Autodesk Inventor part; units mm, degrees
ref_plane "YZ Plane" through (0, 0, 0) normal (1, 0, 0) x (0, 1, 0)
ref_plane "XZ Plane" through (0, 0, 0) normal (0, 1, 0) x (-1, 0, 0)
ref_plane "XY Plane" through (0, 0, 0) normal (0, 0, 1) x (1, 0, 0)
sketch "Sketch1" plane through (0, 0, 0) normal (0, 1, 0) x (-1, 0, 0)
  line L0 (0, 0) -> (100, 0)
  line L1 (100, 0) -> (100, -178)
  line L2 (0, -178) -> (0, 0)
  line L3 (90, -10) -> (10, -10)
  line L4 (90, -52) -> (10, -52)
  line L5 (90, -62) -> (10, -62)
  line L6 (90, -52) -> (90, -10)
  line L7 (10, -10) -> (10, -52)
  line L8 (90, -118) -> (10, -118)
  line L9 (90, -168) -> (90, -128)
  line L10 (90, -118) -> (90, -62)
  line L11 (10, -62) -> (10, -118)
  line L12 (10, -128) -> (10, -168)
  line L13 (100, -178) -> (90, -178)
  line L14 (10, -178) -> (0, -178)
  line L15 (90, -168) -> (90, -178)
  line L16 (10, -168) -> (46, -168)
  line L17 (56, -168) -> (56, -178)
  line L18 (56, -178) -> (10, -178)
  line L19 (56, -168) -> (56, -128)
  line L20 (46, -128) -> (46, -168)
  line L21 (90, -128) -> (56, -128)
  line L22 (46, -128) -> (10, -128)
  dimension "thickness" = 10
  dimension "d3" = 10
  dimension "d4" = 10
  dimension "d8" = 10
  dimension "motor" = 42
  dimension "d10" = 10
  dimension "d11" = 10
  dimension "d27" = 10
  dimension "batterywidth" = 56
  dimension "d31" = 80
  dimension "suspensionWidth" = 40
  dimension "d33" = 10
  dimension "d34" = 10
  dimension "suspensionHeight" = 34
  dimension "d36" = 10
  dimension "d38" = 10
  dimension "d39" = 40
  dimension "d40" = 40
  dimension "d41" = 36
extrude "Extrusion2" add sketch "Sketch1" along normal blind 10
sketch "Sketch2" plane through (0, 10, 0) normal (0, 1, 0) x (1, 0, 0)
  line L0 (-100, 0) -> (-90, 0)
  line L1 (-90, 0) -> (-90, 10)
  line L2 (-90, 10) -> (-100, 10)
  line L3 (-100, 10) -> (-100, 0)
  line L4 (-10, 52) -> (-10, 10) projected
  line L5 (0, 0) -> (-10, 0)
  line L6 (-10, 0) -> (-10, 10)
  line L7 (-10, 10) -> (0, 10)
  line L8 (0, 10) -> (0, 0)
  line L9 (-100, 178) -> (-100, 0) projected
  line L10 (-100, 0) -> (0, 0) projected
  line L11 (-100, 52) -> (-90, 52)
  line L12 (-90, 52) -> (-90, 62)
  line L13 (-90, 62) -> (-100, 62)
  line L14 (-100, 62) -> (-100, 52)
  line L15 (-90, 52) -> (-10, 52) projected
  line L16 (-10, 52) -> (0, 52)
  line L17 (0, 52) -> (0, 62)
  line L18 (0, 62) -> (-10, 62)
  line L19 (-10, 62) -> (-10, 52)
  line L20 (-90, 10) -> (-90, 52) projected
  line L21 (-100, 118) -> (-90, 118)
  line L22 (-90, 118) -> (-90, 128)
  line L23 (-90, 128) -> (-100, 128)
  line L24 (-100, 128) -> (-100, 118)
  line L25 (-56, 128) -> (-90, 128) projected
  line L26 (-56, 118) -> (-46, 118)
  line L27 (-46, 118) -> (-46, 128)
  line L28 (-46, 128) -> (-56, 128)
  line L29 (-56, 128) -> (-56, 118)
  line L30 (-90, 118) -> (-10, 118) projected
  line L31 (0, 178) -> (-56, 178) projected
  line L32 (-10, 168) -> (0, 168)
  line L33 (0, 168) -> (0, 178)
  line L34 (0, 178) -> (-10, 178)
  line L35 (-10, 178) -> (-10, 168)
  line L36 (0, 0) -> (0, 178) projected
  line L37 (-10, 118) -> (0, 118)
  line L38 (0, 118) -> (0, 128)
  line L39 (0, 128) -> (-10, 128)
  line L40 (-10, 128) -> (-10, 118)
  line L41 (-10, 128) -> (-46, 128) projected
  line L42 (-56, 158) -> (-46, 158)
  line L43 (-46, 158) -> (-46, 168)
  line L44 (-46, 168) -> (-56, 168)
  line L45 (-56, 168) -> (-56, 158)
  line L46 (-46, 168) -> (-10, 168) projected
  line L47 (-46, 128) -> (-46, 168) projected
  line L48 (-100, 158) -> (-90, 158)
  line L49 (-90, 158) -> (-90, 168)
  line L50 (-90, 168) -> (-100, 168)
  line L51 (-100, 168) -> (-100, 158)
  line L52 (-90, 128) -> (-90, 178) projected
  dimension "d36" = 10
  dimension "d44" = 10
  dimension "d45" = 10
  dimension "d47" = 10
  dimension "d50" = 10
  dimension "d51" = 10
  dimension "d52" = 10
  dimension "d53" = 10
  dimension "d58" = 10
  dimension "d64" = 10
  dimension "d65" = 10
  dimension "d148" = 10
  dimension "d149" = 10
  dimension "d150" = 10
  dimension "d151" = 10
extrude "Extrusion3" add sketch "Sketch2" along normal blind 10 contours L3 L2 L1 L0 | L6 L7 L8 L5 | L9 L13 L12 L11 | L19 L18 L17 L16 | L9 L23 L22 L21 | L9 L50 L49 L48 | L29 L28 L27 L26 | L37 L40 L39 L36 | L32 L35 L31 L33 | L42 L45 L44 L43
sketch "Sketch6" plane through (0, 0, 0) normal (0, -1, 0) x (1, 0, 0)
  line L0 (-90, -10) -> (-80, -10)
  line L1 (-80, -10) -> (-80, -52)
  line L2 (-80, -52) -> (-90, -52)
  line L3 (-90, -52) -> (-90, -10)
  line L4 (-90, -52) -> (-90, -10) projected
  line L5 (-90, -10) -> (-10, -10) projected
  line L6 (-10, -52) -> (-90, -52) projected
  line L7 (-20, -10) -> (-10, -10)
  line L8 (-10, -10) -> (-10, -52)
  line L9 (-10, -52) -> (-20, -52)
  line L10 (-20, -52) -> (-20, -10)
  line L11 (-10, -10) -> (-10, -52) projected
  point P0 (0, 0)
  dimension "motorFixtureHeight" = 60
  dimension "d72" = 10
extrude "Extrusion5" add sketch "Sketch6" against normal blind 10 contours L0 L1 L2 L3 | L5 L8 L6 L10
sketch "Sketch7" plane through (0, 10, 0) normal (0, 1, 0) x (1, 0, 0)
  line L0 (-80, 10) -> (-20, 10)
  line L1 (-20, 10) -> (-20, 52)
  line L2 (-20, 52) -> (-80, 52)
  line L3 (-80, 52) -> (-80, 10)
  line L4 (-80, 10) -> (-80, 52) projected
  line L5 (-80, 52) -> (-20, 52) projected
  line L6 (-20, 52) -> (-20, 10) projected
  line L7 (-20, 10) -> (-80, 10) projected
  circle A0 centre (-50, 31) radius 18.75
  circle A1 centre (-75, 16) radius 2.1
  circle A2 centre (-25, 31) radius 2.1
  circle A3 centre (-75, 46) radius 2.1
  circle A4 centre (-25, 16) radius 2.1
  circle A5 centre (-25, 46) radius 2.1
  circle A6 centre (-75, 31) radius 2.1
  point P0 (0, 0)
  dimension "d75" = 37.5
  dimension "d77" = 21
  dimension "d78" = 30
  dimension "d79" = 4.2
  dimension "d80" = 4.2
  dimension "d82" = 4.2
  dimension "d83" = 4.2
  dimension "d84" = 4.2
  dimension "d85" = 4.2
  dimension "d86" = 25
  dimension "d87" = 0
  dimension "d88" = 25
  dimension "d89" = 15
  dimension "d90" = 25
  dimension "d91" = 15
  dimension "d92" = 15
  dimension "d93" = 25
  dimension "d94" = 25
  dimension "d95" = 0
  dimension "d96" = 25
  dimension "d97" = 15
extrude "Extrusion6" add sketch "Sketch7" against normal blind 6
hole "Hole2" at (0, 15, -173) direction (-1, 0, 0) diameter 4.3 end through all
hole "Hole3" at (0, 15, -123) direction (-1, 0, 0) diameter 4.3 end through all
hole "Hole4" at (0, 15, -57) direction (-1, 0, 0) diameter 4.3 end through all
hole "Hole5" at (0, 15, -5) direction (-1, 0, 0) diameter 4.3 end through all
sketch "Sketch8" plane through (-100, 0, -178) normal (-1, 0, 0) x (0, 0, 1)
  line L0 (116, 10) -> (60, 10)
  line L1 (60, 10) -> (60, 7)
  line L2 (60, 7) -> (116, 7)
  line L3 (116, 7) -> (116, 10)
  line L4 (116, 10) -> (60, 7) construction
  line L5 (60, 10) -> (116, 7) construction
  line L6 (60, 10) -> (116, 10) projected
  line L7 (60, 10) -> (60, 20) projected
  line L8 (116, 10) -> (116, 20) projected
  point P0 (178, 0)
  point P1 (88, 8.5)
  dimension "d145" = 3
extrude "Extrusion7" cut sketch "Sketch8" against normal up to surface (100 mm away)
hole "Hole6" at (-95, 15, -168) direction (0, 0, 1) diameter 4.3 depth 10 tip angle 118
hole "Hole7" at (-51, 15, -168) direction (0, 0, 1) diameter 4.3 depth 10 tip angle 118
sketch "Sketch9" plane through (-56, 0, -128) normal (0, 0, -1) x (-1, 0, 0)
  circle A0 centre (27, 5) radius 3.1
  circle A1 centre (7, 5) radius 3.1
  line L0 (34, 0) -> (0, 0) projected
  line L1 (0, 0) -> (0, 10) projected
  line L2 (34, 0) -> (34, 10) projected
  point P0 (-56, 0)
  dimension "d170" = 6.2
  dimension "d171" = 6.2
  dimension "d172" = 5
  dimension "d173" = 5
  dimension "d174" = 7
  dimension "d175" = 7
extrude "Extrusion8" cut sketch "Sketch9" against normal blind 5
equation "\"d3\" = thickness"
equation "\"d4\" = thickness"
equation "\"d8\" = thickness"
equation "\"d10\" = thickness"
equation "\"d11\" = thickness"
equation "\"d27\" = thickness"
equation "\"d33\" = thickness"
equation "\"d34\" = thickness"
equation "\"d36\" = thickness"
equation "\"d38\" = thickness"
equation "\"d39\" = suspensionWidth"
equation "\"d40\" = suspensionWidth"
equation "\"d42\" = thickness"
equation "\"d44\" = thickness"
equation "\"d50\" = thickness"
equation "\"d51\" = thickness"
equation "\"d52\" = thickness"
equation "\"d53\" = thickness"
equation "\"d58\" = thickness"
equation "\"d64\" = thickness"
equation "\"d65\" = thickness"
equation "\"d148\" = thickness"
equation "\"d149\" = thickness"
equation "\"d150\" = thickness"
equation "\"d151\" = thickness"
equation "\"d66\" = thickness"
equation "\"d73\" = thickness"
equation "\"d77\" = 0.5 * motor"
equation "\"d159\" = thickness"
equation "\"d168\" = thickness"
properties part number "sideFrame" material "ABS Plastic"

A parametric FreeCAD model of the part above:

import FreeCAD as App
import Part
import Sketcher
from FreeCAD import Vector
Q = App.Units.Quantity


def add_polygon(sketch, points):
    """Adds a closed chain of lines whose ends are joined by coincident constraints."""
    first, n = sketch.GeometryCount, len(points)
    for a, b in zip(points, points[1:] + points[:1]):
        sketch.addGeometry(Part.LineSegment(App.Vector(*a, 0), App.Vector(*b, 0)), False)
    for i in range(n):
        sketch.addConstraint(Sketcher.Constraint("Coincident", first + i, 2, first + (i + 1) % n, 1))

doc = App.newDocument("Part")
body = doc.addObject("PartDesign::Body", "Body")

sketch1 = doc.addObject("Sketcher::SketchObject", "Sketch")
body.addObject(sketch1)
sketch1.AttachmentSupport = (doc.XZ_Plane, [""])
sketch1.MapMode = "FlatFace"
add_polygon(sketch1, [(-100, 0), (0, 0), (0, -178), (-56, -178), (-56, -128), (-90, -128), (-90, -178), (-100, -178)])
add_polygon(sketch1, [(-10, -168), (-10, -128), (-46, -128), (-46, -168)])
add_polygon(sketch1, [(-10, -62), (-90, -62), (-90, -118), (-10, -118)])
add_polygon(sketch1, [(-10, -10), (-90, -10), (-90, -52), (-10, -52)])
sketch1.addConstraint([
    Sketcher.Constraint("Horizontal", 0),
    Sketcher.Constraint("Vertical", 1),
    Sketcher.Constraint("Horizontal", 2),
    Sketcher.Constraint("Vertical", 3),
    Sketcher.Constraint("Horizontal", 4),
    Sketcher.Constraint("Vertical", 5),
    Sketcher.Constraint("Horizontal", 6),
    Sketcher.Constraint("Vertical", 7),
    Sketcher.Constraint("Vertical", 8),
    Sketcher.Constraint("Horizontal", 9),
    Sketcher.Constraint("Vertical", 10),
    Sketcher.Constraint("Horizontal", 11),
    Sketcher.Constraint("Horizontal", 12),
    Sketcher.Constraint("Vertical", 13),
    Sketcher.Constraint("Horizontal", 14),
    Sketcher.Constraint("Vertical", 15),
    Sketcher.Constraint("Horizontal", 16),
    Sketcher.Constraint("Vertical", 17),
    Sketcher.Constraint("Horizontal", 18),
    Sketcher.Constraint("Vertical", 19),
    Sketcher.Constraint("Coincident", 0, 2, -1, 1),
    Sketcher.Constraint("Horizontal", 2, 2, 5, 2),
    Sketcher.Constraint("Horizontal", 4, 2, 8, 2),
    Sketcher.Constraint("Vertical", 5, 2, 12, 2),
    Sketcher.Constraint("Vertical", 11, 2, 14, 2),
    Sketcher.Constraint("Vertical", 13, 2, 16, 2),
    Sketcher.Constraint("Vertical", 15, 2, 18, 2),
    Sketcher.Constraint("Equal", 2, 13),
    Sketcher.Constraint("DistanceX", 2, 2, 2, 1, Q("56 mm")),
    Sketcher.Constraint("DistanceX", 4, 2, 4, 1, Q("34 mm")),
    Sketcher.Constraint("DistanceX", 6, 2, 6, 1, Q("10 mm")),
    Sketcher.Constraint("DistanceX", 9, 2, 9, 1, Q("36 mm")),
    Sketcher.Constraint("DistanceX", 12, 2, 12, 1, Q("80 mm")),
    Sketcher.Constraint("DistanceY", 8, 1, 8, 2, Q("40 mm")),
    Sketcher.Constraint("DistanceY", 17, 2, 17, 1, Q("42 mm")),
    Sketcher.Constraint("DistanceY", 16, 2, -1, 1, Q("10 mm")),
    Sketcher.Constraint("DistanceY", 2, 2, 10, 2, Q("10 mm")),
    Sketcher.Constraint("DistanceY", 4, 2, 13, 2, Q("10 mm")),
    Sketcher.Constraint("DistanceY", 12, 2, 17, 2, Q("10 mm")),
])
pad1 = doc.addObject("PartDesign::Pad", "Pad")
body.addObject(pad1)
pad1.Profile = sketch1
pad1.Length = 10
pad1.Reversed = True

sketch2 = doc.addObject("Sketcher::SketchObject", "Sketch001")
body.addObject(sketch2)
sketch2.AttachmentSupport = (doc.XZ_Plane, [""])
sketch2.MapMode = "FlatFace"
sketch2.AttachmentOffset = App.Placement(Vector(0, 0, -10), App.Rotation())
add_polygon(sketch2, [(-100, -10), (-100, 0), (-90, 0), (-90, -10)])
add_polygon(sketch2, [(-10, -10), (-10, 0), (0, 0), (0, -10)])
add_polygon(sketch2, [(-100, -62), (-100, -52), (-90, -52), (-90, -62)])
add_polygon(sketch2, [(-10, -62), (-10, -52), (0, -52), (0, -62)])
add_polygon(sketch2, [(-100, -128), (-100, -118), (-90, -118), (-90, -128)])
add_polygon(sketch2, [(-100, -168), (-100, -158), (-90, -158), (-90, -168)])
add_polygon(sketch2, [(-56, -128), (-56, -118), (-46, -118), (-46, -128)])
add_polygon(sketch2, [(-10, -118), (0, -118), (0, -128), (-10, -128)])
add_polygon(sketch2, [(-10, -168), (0, -168), (0, -178), (-10, -178)])
add_polygon(sketch2, [(-56, -158), (-46, -158), (-46, -168), (-56, -168)])
sketch2.addConstraint([
    Sketcher.Constraint("Vertical", 0),
    Sketcher.Constraint("Horizontal", 1),
    Sketcher.Constraint("Vertical", 2),
    Sketcher.Constraint("Horizontal", 3),
    Sketcher.Constraint("Vertical", 4),
    Sketcher.Constraint("Horizontal", 5),
    Sketcher.Constraint("Vertical", 6),
    Sketcher.Constraint("Horizontal", 7),
    Sketcher.Constraint("Vertical", 8),
    Sketcher.Constraint("Horizontal", 9),
    Sketcher.Constraint("Vertical", 10),
    Sketcher.Constraint("Horizontal", 11),
    Sketcher.Constraint("Vertical", 12),
    Sketcher.Constraint("Horizontal", 13),
    Sketcher.Constraint("Vertical", 14),
    Sketcher.Constraint("Horizontal", 15),
    Sketcher.Constraint("Vertical", 16),
    Sketcher.Constraint("Horizontal", 17),
    Sketcher.Constraint("Vertical", 18),
    Sketcher.Constraint("Horizontal", 19),
    Sketcher.Constraint("Vertical", 20),
    Sketcher.Constraint("Horizontal", 21),
    Sketcher.Constraint("Vertical", 22),
    Sketcher.Constraint("Horizontal", 23),
    Sketcher.Constraint("Vertical", 24),
    Sketcher.Constraint("Horizontal", 25),
    Sketcher.Constraint("Vertical", 26),
    Sketcher.Constraint("Horizontal", 27),
    Sketcher.Constraint("Horizontal", 28),
    Sketcher.Constraint("Vertical", 29),
    Sketcher.Constraint("Horizontal", 30),
    Sketcher.Constraint("Vertical", 31),
    Sketcher.Constraint("Horizontal", 32),
    Sketcher.Constraint("Vertical", 33),
    Sketcher.Constraint("Horizontal", 34),
    Sketcher.Constraint("Vertical", 35),
    Sketcher.Constraint("Horizontal", 36),
    Sketcher.Constraint("Vertical", 37),
    Sketcher.Constraint("Horizontal", 38),
    Sketcher.Constraint("Vertical", 39),
    Sketcher.Constraint("Coincident", 5, 2, -1, 1),
    Sketcher.Constraint("PointOnObject", 0, 2, -1),
    Sketcher.Constraint("PointOnObject", 13, 2, -2),
    Sketcher.Constraint("PointOnObject", 28, 2, -2),
    Sketcher.Constraint("PointOnObject", 32, 2, -2),
    Sketcher.Constraint("Horizontal", 3, 2, 6, 2),
    Sketcher.Constraint("Horizontal", 9, 2, 12, 2),
    Sketcher.Constraint("Horizontal", 11, 2, 14, 2),
    Sketcher.Constraint("Horizontal", 17, 2, 24, 2),
    Sketcher.Constraint("Horizontal", 19, 2, 26, 2),
    Sketcher.Constraint("Horizontal", 25, 2, 28, 2),
    Sketcher.Constraint("Horizontal", 27, 2, 29, 2),
    Sketcher.Constraint("Horizontal", 23, 2, 32, 2),
    Sketcher.Constraint("Horizontal", 21, 2, 36, 2),
    Sketcher.Constraint("Horizontal", 35, 2, 37, 2),
    Sketcher.Constraint("Vertical", 3, 2, 8, 2),
    Sketcher.Constraint("Vertical", 2, 2, 9, 2),
    Sketcher.Constraint("Vertical", 7, 2, 12, 2),
    Sketcher.Constraint("Vertical", 11, 2, 16, 2),
    Sketcher.Constraint("Vertical", 10, 2, 17, 2),
    Sketcher.Constraint("Vertical", 19, 2, 20, 2),
    Sketcher.Constraint("Vertical", 18, 2, 21, 2),
    Sketcher.Constraint("Vertical", 15, 2, 30, 2),
    Sketcher.Constraint("Vertical", 31, 2, 34, 2),
    Sketcher.Constraint("Vertical", 26, 2, 36, 2),
    Sketcher.Constraint("Vertical", 27, 2, 38, 2),
    Sketcher.Constraint("Equal", 3, 5),
    Sketcher.Constraint("Equal", 23, 25),
    Sketcher.Constraint("Equal", 38, 0),
    Sketcher.Constraint("Equal", 6, 8),
    Sketcher.Constraint("Equal", 14, 16),
    Sketcher.Constraint("Equal", 18, 20),
    Sketcher.Constraint("Equal", 31, 33),
    Sketcher.Constraint("DistanceX", 1, 1, 1, 2, Q("10 mm")),
    Sketcher.Constraint("DistanceX", 0, 2, -1, 1, Q("100 mm")),
    Sketcher.Constraint("DistanceY", 8, 2, -1, 1, Q("52 mm")),
    Sketcher.Constraint("DistanceY", 16, 2, -1, 1, Q("118 mm")),
    Sketcher.Constraint("DistanceY", 20, 2, -1, 1, Q("158 mm")),
    Sketcher.Constraint("DistanceX", 24, 2, -1, 1, Q("56 mm")),
])
pad2 = doc.addObject("PartDesign::Pad", "Pad001")
body.addObject(pad2)
pad2.Profile = sketch2
pad2.Length = 10
pad2.Reversed = True

sketch3 = doc.addObject("Sketcher::SketchObject", "Sketch002")
body.addObject(sketch3)
sketch3.AttachmentSupport = (doc.XZ_Plane, [""])
sketch3.MapMode = "FlatFace"
add_polygon(sketch3, [(-80, -10), (-90, -10), (-90, -52), (-80, -52)])
add_polygon(sketch3, [(-10, -10), (-20, -10), (-20, -52), (-10, -52)])
sketch3.addConstraint([
    Sketcher.Constraint("Horizontal", 0),
    Sketcher.Constraint("Vertical", 1),
    Sketcher.Constraint("Horizontal", 2),
    Sketcher.Constraint("Vertical", 3),
    Sketcher.Constraint("Horizontal", 4),
    Sketcher.Constraint("Vertical", 5),
    Sketcher.Constraint("Horizontal", 6),
    Sketcher.Constraint("Vertical", 7),
    Sketcher.Constraint("Horizontal", 3, 2, 4, 2),
    Sketcher.Constraint("Horizontal", 2, 2, 5, 2),
    Sketcher.Constraint("Equal", 2, 4),
    Sketcher.Constraint("DistanceX", 0, 2, 0, 1, Q("10 mm")),
    Sketcher.Constraint("DistanceY", 0, 2, -1, 1, Q("10 mm")),
    Sketcher.Constraint("DistanceX", 6, 2, -1, 1, Q("10 mm")),
    Sketcher.Constraint("DistanceX", 3, 2, 4, 2, Q("60 mm")),
    Sketcher.Constraint("DistanceY", 1, 2, 1, 1, Q("42 mm")),
])
pad3 = doc.addObject("PartDesign::Pad", "Pad002")
body.addObject(pad3)
pad3.Profile = sketch3
pad3.Length = 10
pad3.Reversed = True

sketch4 = doc.addObject("Sketcher::SketchObject", "Sketch003")
body.addObject(sketch4)
sketch4.AttachmentSupport = (doc.XZ_Plane, [""])
sketch4.MapMode = "FlatFace"
sketch4.AttachmentOffset = App.Placement(Vector(0, 0, -10), App.Rotation())
add_polygon(sketch4, [(-80, -52), (-80, -10), (-20, -10), (-20, -52)])
sketch4.addGeometry(Part.Circle(Vector(-75, -16, 0), Vector(0, 0, 1), 2.1), False)
sketch4.addGeometry(Part.Circle(Vector(-25, -16, 0), Vector(0, 0, 1), 2.1), False)
sketch4.addGeometry(Part.Circle(Vector(-75, -31, 0), Vector(0, 0, 1), 2.1), False)
sketch4.addGeometry(Part.Circle(Vector(-75, -46, 0), Vector(0, 0, 1), 2.1), False)
sketch4.addGeometry(Part.Circle(Vector(-50, -31, 0), Vector(0, 0, 1), 18.75), False)
sketch4.addGeometry(Part.Circle(Vector(-25, -31, 0), Vector(0, 0, 1), 2.1), False)
sketch4.addGeometry(Part.Circle(Vector(-25, -46, 0), Vector(0, 0, 1), 2.1), False)
sketch4.addConstraint([
    Sketcher.Constraint("Vertical", 0),
    Sketcher.Constraint("Horizontal", 1),
    Sketcher.Constraint("Vertical", 2),
    Sketcher.Constraint("Horizontal", 3),
    Sketcher.Constraint("Equal", 4, 5),
    Sketcher.Constraint("Equal", 5, 6),
    Sketcher.Constraint("Equal", 6, 7),
    Sketcher.Constraint("Equal", 7, 9),
    Sketcher.Constraint("Equal", 9, 10),
    Sketcher.Constraint("Horizontal", 4, 3, 5, 3),
    Sketcher.Constraint("Horizontal", 6, 3, 8, 3),
    Sketcher.Constraint("Horizontal", 8, 3, 9, 3),
    Sketcher.Constraint("Horizontal", 7, 3, 10, 3),
    Sketcher.Constraint("Vertical", 4, 3, 6, 3),
    Sketcher.Constraint("Vertical", 6, 3, 7, 3),
    Sketcher.Constraint("Vertical", 5, 3, 9, 3),
    Sketcher.Constraint("Vertical", 9, 3, 10, 3),
    Sketcher.Constraint("Diameter", 4, Q("4.2 mm")),
    Sketcher.Constraint("Diameter", 8, Q("37.5 mm")),
    Sketcher.Constraint("DistanceX", 5, 3, -1, 1, Q("25 mm")),
    Sketcher.Constraint("DistanceY", 6, 3, 4, 3, Q("15 mm")),
    Sketcher.Constraint("DistanceY", 7, 3, 6, 3, Q("15 mm")),
    Sketcher.Constraint("DistanceX", 6, 3, 8, 3, Q("25 mm")),
    Sketcher.Constraint("DistanceX", 8, 3, 5, 3, Q("25 mm")),
    Sketcher.Constraint("DistanceY", 6, 3, 0, 2, Q("21 mm")),
    Sketcher.Constraint("DistanceX", 0, 2, 8, 3, Q("30 mm")),
    Sketcher.Constraint("DistanceX", 8, 3, 1, 2, Q("30 mm")),
    Sketcher.Constraint("DistanceY", 2, 2, 9, 3, Q("21 mm")),
    Sketcher.Constraint("DistanceY", 4, 3, -1, 1, Q("16 mm")),
])
pad4 = doc.addObject("PartDesign::Pad", "Pad003")
body.addObject(pad4)
pad4.Profile = sketch4
pad4.Length = 6

sketch5 = doc.addObject("Sketcher::SketchObject", "Sketch004")
body.addObject(sketch5)
sketch5.AttachmentSupport = (doc.YZ_Plane, [""])
sketch5.MapMode = "FlatFace"
sketch5.addGeometry(Part.Circle(Vector(15, -173, 0), Vector(0, 0, 1), 2.15), False)
sketch5.addConstraint([
    Sketcher.Constraint("Diameter", 0, Q("4.3 mm")),
    Sketcher.Constraint("DistanceX", -1, 1, 0, 3, Q("15 mm")),
    Sketcher.Constraint("DistanceY", 0, 3, -1, 1, Q("173 mm")),
])
doc.recompute()
hole = doc.addObject("PartDesign::Hole", "Hole")
body.addObject(hole)
hole.Profile = sketch5
hole.ThreadType = "None"
hole.Diameter = 4.3
hole.DepthType = "ThroughAll"

sketch6 = doc.addObject("Sketcher::SketchObject", "Sketch005")
body.addObject(sketch6)
sketch6.AttachmentSupport = (doc.YZ_Plane, [""])
sketch6.MapMode = "FlatFace"
sketch6.addGeometry(Part.Circle(Vector(15, -123, 0), Vector(0, 0, 1), 2.15), False)
sketch6.addConstraint([
    Sketcher.Constraint("Diameter", 0, Q("4.3 mm")),
    Sketcher.Constraint("DistanceX", -1, 1, 0, 3, Q("15 mm")),
    Sketcher.Constraint("DistanceY", 0, 3, -1, 1, Q("123 mm")),
])
doc.recompute()
hole2 = doc.addObject("PartDesign::Hole", "Hole001")
body.addObject(hole2)
hole2.Profile = sketch6
hole2.ThreadType = "None"
hole2.Diameter = 4.3
hole2.DepthType = "ThroughAll"

sketch7 = doc.addObject("Sketcher::SketchObject", "Sketch006")
body.addObject(sketch7)
sketch7.AttachmentSupport = (doc.YZ_Plane, [""])
sketch7.MapMode = "FlatFace"
sketch7.addGeometry(Part.Circle(Vector(15, -57, 0), Vector(0, 0, 1), 2.15), False)
sketch7.addConstraint([
    Sketcher.Constraint("Diameter", 0, Q("4.3 mm")),
    Sketcher.Constraint("DistanceX", -1, 1, 0, 3, Q("15 mm")),
    Sketcher.Constraint("DistanceY", 0, 3, -1, 1, Q("57 mm")),
])
doc.recompute()
hole3 = doc.addObject("PartDesign::Hole", "Hole002")
body.addObject(hole3)
hole3.Profile = sketch7
hole3.ThreadType = "None"
hole3.Diameter = 4.3
hole3.DepthType = "ThroughAll"

sketch8 = doc.addObject("Sketcher::SketchObject", "Sketch007")
body.addObject(sketch8)
sketch8.AttachmentSupport = (doc.YZ_Plane, [""])
sketch8.MapMode = "FlatFace"
sketch8.addGeometry(Part.Circle(Vector(15, -5, 0), Vector(0, 0, 1), 2.15), False)
sketch8.addConstraint([
    Sketcher.Constraint("Diameter", 0, Q("4.3 mm")),
    Sketcher.Constraint("DistanceX", -1, 1, 0, 3, Q("15 mm")),
    Sketcher.Constraint("DistanceY", 0, 3, -1, 1, Q("5 mm")),
])
doc.recompute()
hole4 = doc.addObject("PartDesign::Hole", "Hole003")
body.addObject(hole4)
hole4.Profile = sketch8
hole4.ThreadType = "None"
hole4.Diameter = 4.3
hole4.DepthType = "ThroughAll"

sketch9 = doc.addObject("Sketcher::SketchObject", "Sketch008")
body.addObject(sketch9)
sketch9.AttachmentSupport = (doc.YZ_Plane, [""])
sketch9.MapMode = "FlatFace"
sketch9.AttachmentOffset = App.Placement(Vector(0, 0, -100), App.Rotation())
add_polygon(sketch9, [(7, -62), (10, -62), (10, -118), (7, -118)])
sketch9.addConstraint([
    Sketcher.Constraint("Horizontal", 0),
    Sketcher.Constraint("Vertical", 1),
    Sketcher.Constraint("Horizontal", 2),
    Sketcher.Constraint("Vertical", 3),
    Sketcher.Constraint("DistanceX", 0, 1, 0, 2, Q("3 mm")),
    Sketcher.Constraint("DistanceY", 1, 2, 1, 1, Q("56 mm")),
    Sketcher.Constraint("DistanceX", -1, 1, 0, 2, Q("10 mm")),
    Sketcher.Constraint("DistanceY", 0, 2, -1, 1, Q("62 mm")),
])
pocket1 = doc.addObject("PartDesign::Pocket", "Pocket")
body.addObject(pocket1)
pocket1.Profile = sketch9
pocket1.Length = 100
pocket1.Reversed = True

sketch10 = doc.addObject("Sketcher::SketchObject", "Sketch009")
body.addObject(sketch10)
sketch10.AttachmentSupport = (doc.XY_Plane, [""])
sketch10.MapMode = "FlatFace"
sketch10.AttachmentOffset = App.Placement(Vector(0, 0, -168), App.Rotation())
sketch10.addGeometry(Part.Circle(Vector(-95, 15, 0), Vector(0, 0, 1), 2.15), False)
sketch10.addConstraint([
    Sketcher.Constraint("Diameter", 0, Q("4.3 mm")),
    Sketcher.Constraint("DistanceX", 0, 3, -1, 1, Q("95 mm")),
    Sketcher.Constraint("DistanceY", -1, 1, 0, 3, Q("15 mm")),
])
doc.recompute()
hole5 = doc.addObject("PartDesign::Hole", "Hole004")
body.addObject(hole5)
hole5.Profile = sketch10
hole5.ThreadType = "None"
hole5.Diameter = 4.3
hole5.DepthType = "Dimension"
hole5.Depth = 10
hole5.DrillPoint = "Angled"
hole5.DrillPointAngle = 118
hole5.Reversed = True

sketch11 = doc.addObject("Sketcher::SketchObject", "Sketch010")
body.addObject(sketch11)
sketch11.AttachmentSupport = (doc.XY_Plane, [""])
sketch11.MapMode = "FlatFace"
sketch11.AttachmentOffset = App.Placement(Vector(0, 0, -168), App.Rotation())
sketch11.addGeometry(Part.Circle(Vector(-51, 15, 0), Vector(0, 0, 1), 2.15), False)
sketch11.addConstraint([
    Sketcher.Constraint("Diameter", 0, Q("4.3 mm")),
    Sketcher.Constraint("DistanceX", 0, 3, -1, 1, Q("51 mm")),
    Sketcher.Constraint("DistanceY", -1, 1, 0, 3, Q("15 mm")),
])
doc.recompute()
hole6 = doc.addObject("PartDesign::Hole", "Hole005")
body.addObject(hole6)
hole6.Profile = sketch11
hole6.ThreadType = "None"
hole6.Diameter = 4.3
hole6.DepthType = "Dimension"
hole6.Depth = 10
hole6.DrillPoint = "Angled"
hole6.DrillPointAngle = 118
hole6.Reversed = True

sketch12 = doc.addObject("Sketcher::SketchObject", "Sketch011")
body.addObject(sketch12)
sketch12.AttachmentSupport = (doc.XY_Plane, [""])
sketch12.MapMode = "FlatFace"
sketch12.AttachmentOffset = App.Placement(Vector(0, 0, -128), App.Rotation())
sketch12.addGeometry([
    Part.Circle(Vector(-83, 5, 0), Vector(0, 0, 1), 3.1),
    Part.Circle(Vector(-63, 5, 0), Vector(0, 0, 1), 3.1),
], False)
sketch12.addConstraint([
    Sketcher.Constraint("Equal", 0, 1),
    Sketcher.Constraint("Horizontal", 0, 3, 1, 3),
    Sketcher.Constraint("Diameter", 0, Q("6.2 mm")),
    Sketcher.Constraint("DistanceY", -1, 1, 0, 3, Q("5 mm")),
    Sketcher.Constraint("DistanceX", 0, 3, -1, 1, Q("83 mm")),
    Sketcher.Constraint("DistanceX", 1, 3, -1, 1, Q("63 mm")),
])
pocket2 = doc.addObject("PartDesign::Pocket", "Pocket001")
body.addObject(pocket2)
pocket2.Profile = sketch12
pocket2.Length = 5
pocket2.Reversed = True

doc.recompute()
